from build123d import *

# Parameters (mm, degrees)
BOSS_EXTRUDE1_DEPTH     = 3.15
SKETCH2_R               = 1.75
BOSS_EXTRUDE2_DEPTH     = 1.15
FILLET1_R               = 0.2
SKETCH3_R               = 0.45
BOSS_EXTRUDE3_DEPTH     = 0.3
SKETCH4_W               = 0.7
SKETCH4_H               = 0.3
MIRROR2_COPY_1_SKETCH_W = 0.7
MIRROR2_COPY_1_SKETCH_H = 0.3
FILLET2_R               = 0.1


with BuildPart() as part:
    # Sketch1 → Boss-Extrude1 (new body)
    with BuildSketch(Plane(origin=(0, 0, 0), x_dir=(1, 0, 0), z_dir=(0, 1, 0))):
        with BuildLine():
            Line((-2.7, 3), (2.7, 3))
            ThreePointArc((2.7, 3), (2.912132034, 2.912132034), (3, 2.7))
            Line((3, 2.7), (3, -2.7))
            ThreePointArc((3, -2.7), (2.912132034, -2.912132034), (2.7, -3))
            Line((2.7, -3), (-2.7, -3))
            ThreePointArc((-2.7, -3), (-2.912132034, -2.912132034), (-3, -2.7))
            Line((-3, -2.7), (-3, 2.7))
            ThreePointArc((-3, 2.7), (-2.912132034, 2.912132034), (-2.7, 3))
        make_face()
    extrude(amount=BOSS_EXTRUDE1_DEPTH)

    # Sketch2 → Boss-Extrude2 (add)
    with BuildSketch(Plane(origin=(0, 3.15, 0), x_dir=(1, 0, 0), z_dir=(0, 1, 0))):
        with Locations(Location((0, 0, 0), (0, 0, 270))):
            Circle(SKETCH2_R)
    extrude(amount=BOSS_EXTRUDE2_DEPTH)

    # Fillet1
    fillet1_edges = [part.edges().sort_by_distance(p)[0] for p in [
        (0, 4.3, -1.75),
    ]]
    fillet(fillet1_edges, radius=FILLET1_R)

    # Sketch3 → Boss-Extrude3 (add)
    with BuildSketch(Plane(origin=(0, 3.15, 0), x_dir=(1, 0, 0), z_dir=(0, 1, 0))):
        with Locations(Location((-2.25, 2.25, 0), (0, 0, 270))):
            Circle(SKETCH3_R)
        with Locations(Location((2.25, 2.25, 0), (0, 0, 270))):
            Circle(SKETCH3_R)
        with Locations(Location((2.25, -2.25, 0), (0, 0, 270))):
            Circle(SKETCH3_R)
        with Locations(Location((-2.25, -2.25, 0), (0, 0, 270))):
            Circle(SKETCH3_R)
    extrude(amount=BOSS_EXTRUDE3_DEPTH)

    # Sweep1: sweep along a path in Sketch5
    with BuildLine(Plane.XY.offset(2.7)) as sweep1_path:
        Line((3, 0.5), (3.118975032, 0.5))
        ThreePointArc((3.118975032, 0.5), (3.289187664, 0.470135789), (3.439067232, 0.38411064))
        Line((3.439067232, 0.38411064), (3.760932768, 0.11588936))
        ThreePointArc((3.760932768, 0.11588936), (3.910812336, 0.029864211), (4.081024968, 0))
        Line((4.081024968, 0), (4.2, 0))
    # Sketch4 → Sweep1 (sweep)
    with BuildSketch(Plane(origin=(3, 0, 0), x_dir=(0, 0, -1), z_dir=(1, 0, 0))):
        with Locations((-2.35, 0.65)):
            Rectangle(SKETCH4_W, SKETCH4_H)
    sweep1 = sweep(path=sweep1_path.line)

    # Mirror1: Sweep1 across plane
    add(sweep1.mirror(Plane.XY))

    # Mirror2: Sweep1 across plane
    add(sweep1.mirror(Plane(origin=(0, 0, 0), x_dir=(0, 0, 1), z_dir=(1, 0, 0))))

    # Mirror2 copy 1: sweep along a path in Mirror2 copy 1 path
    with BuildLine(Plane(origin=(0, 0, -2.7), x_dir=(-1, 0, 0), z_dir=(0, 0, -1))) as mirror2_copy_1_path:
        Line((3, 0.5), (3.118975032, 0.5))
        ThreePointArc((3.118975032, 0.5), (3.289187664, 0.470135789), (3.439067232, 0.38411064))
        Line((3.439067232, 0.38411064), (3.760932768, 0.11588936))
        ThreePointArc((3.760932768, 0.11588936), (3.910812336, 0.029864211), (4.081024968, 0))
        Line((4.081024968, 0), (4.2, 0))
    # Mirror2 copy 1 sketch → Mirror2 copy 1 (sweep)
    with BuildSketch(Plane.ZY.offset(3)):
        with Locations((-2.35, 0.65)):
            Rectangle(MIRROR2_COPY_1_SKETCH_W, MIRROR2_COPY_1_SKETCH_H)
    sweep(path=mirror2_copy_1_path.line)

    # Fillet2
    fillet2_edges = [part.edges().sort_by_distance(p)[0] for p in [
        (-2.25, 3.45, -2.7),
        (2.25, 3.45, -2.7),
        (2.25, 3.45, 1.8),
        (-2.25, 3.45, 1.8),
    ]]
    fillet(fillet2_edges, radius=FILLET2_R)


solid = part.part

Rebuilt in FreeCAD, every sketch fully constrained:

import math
import FreeCAD as App
import Part
import Sketcher
from FreeCAD import Vector


def edges_at(feature, points):
    """Names of the edges that pass closest to the given points."""
    edges = feature.Shape.Edges
    near = lambda p: min(range(len(edges)), key=lambda i: edges[i].distToShape(Part.Vertex(*p))[0])
    return sorted({f"Edge{near(p) + 1}" for p in points})


def add_polygon(sketch, points):
    """Adds a closed chain of lines whose ends are joined by coincident constraints."""
    first, n = sketch.GeometryCount, len(points)
    for a, b in zip(points, points[1:] + points[:1]):
        sketch.addGeometry(Part.LineSegment(App.Vector(*a, 0), App.Vector(*b, 0)), False)
    for i in range(n):
        sketch.addConstraint(Sketcher.Constraint("Coincident", first + i, 2, first + (i + 1) % n, 1))

doc = App.newDocument("Part")
body = doc.addObject("PartDesign::Body", "Body")

# Sketch on XZ plane
sketch1 = body.newObject("Sketcher::SketchObject", "Sketch")
sketch1.AttachmentSupport = (doc.getObject("XZ_Plane"), [""])
sketch1.MapMode = "FlatFace"
sketch1.addGeometry(Part.LineSegment(Vector(2.7, -3, 0), Vector(-2.7, -3, 0)), False)
sketch1.addGeometry(Part.ArcOfCircle(Part.Circle(Vector(-2.7, -2.7, 0), Vector(0, 0, 1), 0.3), math.radians(-180), math.radians(-90)), False)
sketch1.addGeometry(Part.LineSegment(Vector(-3, -2.7, 0), Vector(-3, 2.7, 0)), False)
sketch1.addGeometry(Part.ArcOfCircle(Part.Circle(Vector(-2.7, 2.7, 0), Vector(0, 0, 1), 0.3), math.radians(90), math.radians(180)), False)
sketch1.addGeometry(Part.LineSegment(Vector(-2.7, 3, 0), Vector(2.7, 3, 0)), False)
sketch1.addGeometry(Part.ArcOfCircle(Part.Circle(Vector(2.7, 2.7, 0), Vector(0, 0, 1), 0.3), math.radians(0), math.radians(90)), False)
sketch1.addGeometry(Part.LineSegment(Vector(3, 2.7, 0), Vector(3, -2.7, 0)), False)
sketch1.addGeometry(Part.ArcOfCircle(Part.Circle(Vector(2.7, -2.7, 0), Vector(0, 0, 1), 0.3), math.radians(-90), math.radians(0)), False)
sketch1.addConstraint(Sketcher.Constraint("Tangent", 0, 2, 1, 2))
sketch1.addConstraint(Sketcher.Constraint("Tangent", 1, 1, 2, 1))
sketch1.addConstraint(Sketcher.Constraint("Tangent", 2, 2, 3, 2))
sketch1.addConstraint(Sketcher.Constraint("Tangent", 3, 1, 4, 1))
sketch1.addConstraint(Sketcher.Constraint("Tangent", 4, 2, 5, 2))
sketch1.addConstraint(Sketcher.Constraint("Tangent", 5, 1, 6, 1))
sketch1.addConstraint(Sketcher.Constraint("Tangent", 6, 2, 7, 2))
sketch1.addConstraint(Sketcher.Constraint("Tangent", 7, 1, 0, 1))
sketch1.addConstraint(Sketcher.Constraint("Horizontal", 0))
sketch1.addConstraint(Sketcher.Constraint("Vertical", 2))
sketch1.addConstraint(Sketcher.Constraint("Horizontal", 4))
sketch1.addConstraint(Sketcher.Constraint("Vertical", 6))
sketch1.addConstraint(Sketcher.Constraint("Equal", 1, 3))
sketch1.addConstraint(Sketcher.Constraint("Equal", 3, 5))
sketch1.addConstraint(Sketcher.Constraint("Equal", 5, 7))
sketch1.addConstraint(Sketcher.Constraint("Symmetric", 1, 3, 5, 3, -1, 1))
sketch1.addConstraint(Sketcher.Constraint("Equal", 4, 2))
sketch1.addConstraint(Sketcher.Constraint("Radius", 1, 0.3))
sketch1.addConstraint(Sketcher.Constraint("DistanceX", 0, 2, 0, 1, 5.4))
pad1 = body.newObject("PartDesign::Pad", "Pad")
pad1.Profile = sketch1
pad1.Length = 3.15
pad1.Reversed = True

# Sketch on XZ plane
sketch2 = body.newObject("Sketcher::SketchObject", "Sketch001")
sketch2.AttachmentSupport = (doc.getObject("XZ_Plane"), [""])
sketch2.MapMode = "FlatFace"
sketch2.AttachmentOffset = App.Placement(Vector(0, 0, -3.15), App.Rotation())
sketch2.addGeometry(Part.Circle(Vector(0, 0, 0), Vector(0, 0, 1), 1.75), False)
sketch2.addConstraint(Sketcher.Constraint("Coincident", 0, 3, -1, 1))
sketch2.addConstraint(Sketcher.Constraint("Diameter", 0, 3.5))
pad2 = body.newObject("PartDesign::Pad", "Pad001")
pad2.Profile = sketch2
pad2.Length = 1.15
pad2.Reversed = True
doc.recompute()

fillet = body.newObject("PartDesign::Fillet", "Fillet")
fillet.Base = (pad2, edges_at(pad2, [(0, 4.3, -1.75)]))
fillet.Radius = 0.2

# Sketch on XZ plane
sketch3 = body.newObject("Sketcher::SketchObject", "Sketch002")
sketch3.AttachmentSupport = (doc.getObject("XZ_Plane"), [""])
sketch3.MapMode = "FlatFace"
sketch3.AttachmentOffset = App.Placement(Vector(0, 0, -3.15), App.Rotation())
sketch3.addGeometry(Part.Circle(Vector(-2.25, -2.25, 0), Vector(0, 0, 1), 0.45), False)
sketch3.addGeometry(Part.Circle(Vector(2.25, -2.25, 0), Vector(0, 0, 1), 0.45), False)
sketch3.addGeometry(Part.Circle(Vector(2.25, 2.25, 0), Vector(0, 0, 1), 0.45), False)
sketch3.addGeometry(Part.Circle(Vector(-2.25, 2.25, 0), Vector(0, 0, 1), 0.45), False)
sketch3.addConstraint(Sketcher.Constraint("Equal", 0, 1))
sketch3.addConstraint(Sketcher.Constraint("Equal", 1, 2))
sketch3.addConstraint(Sketcher.Constraint("Equal", 2, 3))
sketch3.addConstraint(Sketcher.Constraint("Symmetric", 0, 3, 2, 3, -1, 1))
sketch3.addConstraint(Sketcher.Constraint("Symmetric", 1, 3, 3, 3, -1, 1))
sketch3.addConstraint(Sketcher.Constraint("Symmetric", 0, 3, 1, 3, -2))
sketch3.addConstraint(Sketcher.Constraint("Diameter", 0, 0.9))
sketch3.addConstraint(Sketcher.Constraint("DistanceX", 0, 3, 1, 3, 4.5))
sketch3.addConstraint(Sketcher.Constraint("DistanceY", 1, 3, 2, 3, 4.5))
pad3 = body.newObject("PartDesign::Pad", "Pad002")
pad3.Profile = sketch3
pad3.Length = 0.3
pad3.Reversed = True

# Sketch on YZ plane
sketch4 = body.newObject("Sketcher::SketchObject", "Sketch003")
sketch4.AttachmentSupport = (doc.getObject("YZ_Plane"), [""])
sketch4.MapMode = "FlatFace"
sketch4.AttachmentOffset = App.Placement(Vector(0, 0, 3), App.Rotation())
add_polygon(sketch4, [(0.8, 2.7), (0.5, 2.7), (0.5, 2), (0.8, 2)])  # lines 0-3
sketch4.addConstraint(Sketcher.Constraint("Horizontal", 0))
sketch4.addConstraint(Sketcher.Constraint("Vertical", 1))
sketch4.addConstraint(Sketcher.Constraint("Horizontal", 2))
sketch4.addConstraint(Sketcher.Constraint("Vertical", 3))
sketch4.addConstraint(Sketcher.Constraint("DistanceX", 0, 2, 0, 1, 0.3))
sketch4.addConstraint(Sketcher.Constraint("DistanceY", 1, 2, 1, 1, 0.7))
sketch4.addConstraint(Sketcher.Constraint("DistanceY", -1, 1, 1, 2, 2.0))
sketch4.addConstraint(Sketcher.Constraint("DistanceX", -1, 1, 0, 2, 0.5))

# Sketch on XY plane
sketch5 = body.newObject("Sketcher::SketchObject", "Sketch004")
sketch5.AttachmentSupport = (doc.getObject("XY_Plane"), [""])
sketch5.MapMode = "FlatFace"
sketch5.AttachmentOffset = App.Placement(Vector(0, 0, 2.7), App.Rotation())
sketch5.addGeometry(Part.LineSegment(Vector(3, 0.5, 0), Vector(3.118975, 0.5, 0)), False)
sketch5.addGeometry(Part.ArcOfCircle(Part.Circle(Vector(3.118975, 0, 0), Vector(0, 0, 1), 0.5), math.radians(50.194429), math.radians(90)), False)
sketch5.addGeometry(Part.LineSegment(Vector(3.439067, 0.384111, 0), Vector(3.760933, 0.115889, 0)), False)
sketch5.addGeometry(Part.ArcOfCircle(Part.Circle(Vector(4.081025, 0.5, 0), Vector(0, 0, 1), 0.5), math.radians(-129.805571), math.radians(-90)), False)
sketch5.addGeometry(Part.LineSegment(Vector(4.081025, 0, 0), Vector(4.2, 0, 0)), False)
sketch5.addConstraint(Sketcher.Constraint("Tangent", 0, 2, 1, 2))
sketch5.addConstraint(Sketcher.Constraint("Tangent", 1, 1, 2, 1))
sketch5.addConstraint(Sketcher.Constraint("Tangent", 2, 2, 3, 1))
sketch5.addConstraint(Sketcher.Constraint("Tangent", 3, 2, 4, 1))
sketch5.addConstraint(Sketcher.Constraint("Horizontal", 0))
sketch5.addConstraint(Sketcher.Constraint("Horizontal", 4))
sketch5.addConstraint(Sketcher.Constraint("Equal", 1, 3))
sketch5.addConstraint(Sketcher.Constraint("PointOnObject", 1, 3, -1))
sketch5.addConstraint(Sketcher.Constraint("PointOnObject", 3, 2, -1))
sketch5.addConstraint(Sketcher.Constraint("Equal", 0, 4))
sketch5.addConstraint(Sketcher.Constraint("Radius", 1, 0.5))
sketch5.addConstraint(Sketcher.Constraint("DistanceX", -1, 1, 0, 1, 3.0))
sketch5.addConstraint(Sketcher.Constraint("DistanceX", -1, 1, 4, 2, 4.2))
sketch5.addConstraint(Sketcher.Constraint("DistanceX", 0, 1, 0, 2, 0.118975))
doc.recompute()

additivepipe = body.newObject("PartDesign::AdditivePipe", "AdditivePipe")
additivepipe.Profile = sketch4
additivepipe.Spine = (sketch5, ["Edge1", "Edge2", "Edge3", "Edge4", "Edge5"])
doc.recompute()

mirrored = body.newObject("PartDesign::Mirrored", "Mirrored")
mirrored.Originals = [additivepipe]
mirrored.MirrorPlane = (doc.getObject("XY_Plane"), [""])
body.Tip = mirrored
doc.recompute()

mirrored2 = body.newObject("PartDesign::Mirrored", "Mirrored001")
mirrored2.Originals = [additivepipe]
mirrored2.MirrorPlane = (doc.getObject("YZ_Plane"), [""])
body.Tip = mirrored2

# Sketch on YZ plane
sketch6 = body.newObject("Sketcher::SketchObject", "Sketch005")
sketch6.AttachmentSupport = (doc.getObject("YZ_Plane"), [""])
sketch6.MapMode = "FlatFace"
sketch6.AttachmentOffset = App.Placement(Vector(0, 0, -3), App.Rotation())
add_polygon(sketch6, [(0.8, -2.7), (0.5, -2.7), (0.5, -2), (0.8, -2)])  # lines 0-3
sketch6.addConstraint(Sketcher.Constraint("Horizontal", 0))
sketch6.addConstraint(Sketcher.Constraint("Vertical", 1))
sketch6.addConstraint(Sketcher.Constraint("Horizontal", 2))
sketch6.addConstraint(Sketcher.Constraint("Vertical", 3))
sketch6.addConstraint(Sketcher.Constraint("DistanceX", 0, 2, 0, 1, 0.3))
sketch6.addConstraint(Sketcher.Constraint("DistanceY", 1, 1, 1, 2, 0.7))
sketch6.addConstraint(Sketcher.Constraint("DistanceY", 1, 2, -1, 1, 2.0))
sketch6.addConstraint(Sketcher.Constraint("DistanceX", -1, 1, 0, 2, 0.5))

# Sketch on XY plane
sketch7 = body.newObject("Sketcher::SketchObject", "Sketch006")
sketch7.AttachmentSupport = (doc.getObject("XY_Plane"), [""])
sketch7.MapMode = "FlatFace"
sketch7.AttachmentOffset = App.Placement(Vector(0, 0, -2.7), App.Rotation())
sketch7.addGeometry(Part.LineSegment(Vector(-3, 0.5, 0), Vector(-3.118975, 0.5, 0)), False)
sketch7.addGeometry(Part.ArcOfCircle(Part.Circle(Vector(-3.118975, 0, 0), Vector(0, 0, 1), 0.5), math.radians(90), math.radians(129.805571)), False)
sketch7.addGeometry(Part.LineSegment(Vector(-3.439067, 0.384111, 0), Vector(-3.760933, 0.115889, 0)), False)
sketch7.addGeometry(Part.ArcOfCircle(Part.Circle(Vector(-4.081025, 0.5, 0), Vector(0, 0, 1), 0.5), math.radians(-90), math.radians(-50.194429)), False)
sketch7.addGeometry(Part.LineSegment(Vector(-4.081025, 0, 0), Vector(-4.2, 0, 0)), False)
sketch7.addConstraint(Sketcher.Constraint("Tangent", 0, 2, 1, 1))
sketch7.addConstraint(Sketcher.Constraint("Tangent", 1, 2, 2, 1))
sketch7.addConstraint(Sketcher.Constraint("Tangent", 2, 2, 3, 2))
sketch7.addConstraint(Sketcher.Constraint("Tangent", 3, 1, 4, 1))
sketch7.addConstraint(Sketcher.Constraint("Horizontal", 0))
sketch7.addConstraint(Sketcher.Constraint("Horizontal", 4))
sketch7.addConstraint(Sketcher.Constraint("Equal", 1, 3))
sketch7.addConstraint(Sketcher.Constraint("PointOnObject", 1, 3, -1))
sketch7.addConstraint(Sketcher.Constraint("PointOnObject", 3, 1, -1))
sketch7.addConstraint(Sketcher.Constraint("Equal", 0, 4))
sketch7.addConstraint(Sketcher.Constraint("Radius", 1, 0.5))
sketch7.addConstraint(Sketcher.Constraint("DistanceX", 0, 1, -1, 1, 3.0))
sketch7.addConstraint(Sketcher.Constraint("DistanceX", 4, 2, -1, 1, 4.2))
sketch7.addConstraint(Sketcher.Constraint("DistanceX", 0, 2, 0, 1, 0.118975))
doc.recompute()

additivepipe2 = body.newObject("PartDesign::AdditivePipe", "AdditivePipe001")
additivepipe2.Profile = sketch6
additivepipe2.Spine = (sketch7, ["Edge1", "Edge2", "Edge3", "Edge4", "Edge5"])
doc.recompute()

fillet2 = body.newObject("PartDesign::Fillet", "Fillet001")
fillet2.Base = (additivepipe2, edges_at(additivepipe2, [
    (-2.25, 3.45, -2.7),
    (2.25, 3.45, -2.7),
    (2.25, 3.45, 1.8),
    (-2.25, 3.45, 1.8),
]))
fillet2.Radius = 0.1

doc.recompute()
